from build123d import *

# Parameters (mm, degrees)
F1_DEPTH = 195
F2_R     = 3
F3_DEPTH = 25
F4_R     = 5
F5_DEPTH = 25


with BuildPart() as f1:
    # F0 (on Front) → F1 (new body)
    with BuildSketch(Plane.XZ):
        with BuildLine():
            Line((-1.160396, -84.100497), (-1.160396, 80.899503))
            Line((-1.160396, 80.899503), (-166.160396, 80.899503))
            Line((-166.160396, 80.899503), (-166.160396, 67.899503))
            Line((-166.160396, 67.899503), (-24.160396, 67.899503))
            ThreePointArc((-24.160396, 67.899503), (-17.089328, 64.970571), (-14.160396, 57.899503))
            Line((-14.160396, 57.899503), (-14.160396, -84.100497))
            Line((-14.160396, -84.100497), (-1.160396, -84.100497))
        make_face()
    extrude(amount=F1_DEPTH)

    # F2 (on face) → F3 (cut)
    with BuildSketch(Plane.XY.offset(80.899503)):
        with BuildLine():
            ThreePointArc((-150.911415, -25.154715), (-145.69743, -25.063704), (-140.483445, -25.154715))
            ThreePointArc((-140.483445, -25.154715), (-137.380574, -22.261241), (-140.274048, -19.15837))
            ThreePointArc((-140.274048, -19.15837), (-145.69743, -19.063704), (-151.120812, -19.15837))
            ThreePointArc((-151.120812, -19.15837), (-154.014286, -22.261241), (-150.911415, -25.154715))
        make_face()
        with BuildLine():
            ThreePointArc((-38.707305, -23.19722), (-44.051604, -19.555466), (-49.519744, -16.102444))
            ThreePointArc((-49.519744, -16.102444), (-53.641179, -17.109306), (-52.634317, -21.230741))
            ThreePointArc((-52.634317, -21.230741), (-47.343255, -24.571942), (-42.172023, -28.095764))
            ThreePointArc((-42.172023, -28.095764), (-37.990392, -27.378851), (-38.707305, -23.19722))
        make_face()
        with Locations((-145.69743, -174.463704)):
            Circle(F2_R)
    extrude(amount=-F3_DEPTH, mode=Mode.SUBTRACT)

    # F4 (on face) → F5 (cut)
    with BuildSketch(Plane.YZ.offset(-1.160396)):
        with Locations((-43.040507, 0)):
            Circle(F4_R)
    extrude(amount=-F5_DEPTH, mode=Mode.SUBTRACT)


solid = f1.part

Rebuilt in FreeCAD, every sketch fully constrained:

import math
import FreeCAD as App
import Part
import Sketcher

V = App.Vector

doc = App.newDocument("Part")
body = doc.addObject("PartDesign::Body", "Body")

# Sketch on XZ plane
sketch1 = body.newObject("Sketcher::SketchObject", "Sketch")
sketch1.AttachmentSupport = (doc.getObject("XZ_Plane"), [""])
sketch1.MapMode = "FlatFace"
sketch1.addGeometry([
    Part.LineSegment(V(-1.160396, -84.100497, 0), V(-1.160396, 80.899503, 0)),  # 0
    Part.LineSegment(V(-1.160396, 80.899503, 0), V(-166.160396, 80.899503, 0)),  # 1
    Part.LineSegment(V(-166.160396, 80.899503, 0), V(-166.160396, 67.899503, 0)),  # 2
    Part.LineSegment(V(-166.160396, 67.899503, 0), V(-24.160396, 67.899503, 0)),  # 3
    Part.ArcOfCircle(Part.Circle(V(-24.160395, 57.899504, 0), V(0, 0, 1), 9.999999), math.radians(-0.000004), math.radians(90.000004)),  # 4
    Part.LineSegment(V(-14.160396, 57.899503, 0), V(-14.160396, -84.100497, 0)),  # 5
    Part.LineSegment(V(-14.160396, -84.100497, 0), V(-1.160396, -84.100497, 0)),  # 6
], False)
sketch1.addConstraint([
    Sketcher.Constraint("Coincident", 0, 2, 1, 1),
    Sketcher.Constraint("Coincident", 1, 2, 2, 1),
    Sketcher.Constraint("Coincident", 2, 2, 3, 1),
    Sketcher.Constraint("Tangent", 3, 2, 4, 2),
    Sketcher.Constraint("Tangent", 4, 1, 5, 1),
    Sketcher.Constraint("Coincident", 5, 2, 6, 1),
    Sketcher.Constraint("Coincident", 6, 2, 0, 1),
    Sketcher.Constraint("Vertical", 0),
    Sketcher.Constraint("Horizontal", 1),
    Sketcher.Constraint("Vertical", 2),
    Sketcher.Constraint("Horizontal", 3),
    Sketcher.Constraint("Vertical", 5),
    Sketcher.Constraint("Horizontal", 6),
    Sketcher.Constraint("Equal", 1, 0),
    Sketcher.Constraint("Equal", 6, 2),
    Sketcher.Constraint("Radius", 4, 9.999999),
    Sketcher.Constraint("DistanceX", 1, 2, 1, 1, 165.0),
    Sketcher.Constraint("DistanceX", 3, 1, 3, 2, 142.0),
    Sketcher.Constraint("DistanceX", 4, 3, -1, 1, 24.160395),
    Sketcher.Constraint("DistanceY", -1, 1, 4, 3, 57.899504),
])
pad1 = body.newObject("PartDesign::Pad", "Pad")
pad1.Profile = sketch1
pad1.Length = 195

# Sketch on XY plane
sketch2 = body.newObject("Sketcher::SketchObject", "Sketch001")
sketch2.AttachmentSupport = (doc.getObject("XY_Plane"), [""])
sketch2.MapMode = "FlatFace"
sketch2.AttachmentOffset = App.Placement(V(0, 0, 80.899503), App.Rotation())
sketch2.addGeometry([
    Part.ArcOfCircle(Part.Circle(V(-145.69743, -174.462802, 0), V(0, 0, 1), 149.399098), math.radians(87.999988), math.radians(92.000012)),  # 0
    Part.ArcOfCircle(Part.Circle(V(-140.378747, -22.156543, 0), V(0, 0, 1), 3), math.radians(-92), math.radians(88)),  # 1
    Part.ArcOfCircle(Part.Circle(V(-145.69743, -174.462865, 0), V(0, 0, 1), 155.399161), math.radians(87.999989), math.radians(92.000011)),  # 2
    Part.ArcOfCircle(Part.Circle(V(-151.016113, -22.156543, 0), V(0, 0, 1), 3), math.radians(92), math.radians(272)),  # 3
    Part.ArcOfCircle(Part.Circle(V(-145.697057, -174.463141, 0), V(0, 0, 1), 185.278671), math.radians(54.728391), math.radians(58.728405)),  # 4
    Part.ArcOfCircle(Part.Circle(V(-51.07703, -18.666593, 0), V(0, 0, 1), 3), math.radians(58.728399), math.radians(238.728399)),  # 5
    Part.ArcOfCircle(Part.Circle(V(-145.696927, -174.462924, 0), V(0, 0, 1), 179.278418), math.radians(54.728384), math.radians(58.728405)),  # 6
    Part.ArcOfCircle(Part.Circle(V(-40.439664, -25.646492, 0), V(0, 0, 1), 3), math.radians(-125.271597), math.radians(54.728403)),  # 7
    Part.Circle(V(-145.69743, -174.463704, 0), V(0, 0, 1), 3),  # 8
], False)
sketch2.addConstraint([
    Sketcher.Constraint("Coincident", 0, 1, 1, 1),
    Sketcher.Constraint("Coincident", 1, 2, 2, 1),
    Sketcher.Constraint("Coincident", 2, 2, 3, 1),
    Sketcher.Constraint("Coincident", 3, 2, 0, 2),
    Sketcher.Constraint("Coincident", 4, 2, 5, 1),
    Sketcher.Constraint("Coincident", 5, 2, 6, 2),
    Sketcher.Constraint("Coincident", 6, 1, 7, 1),
    Sketcher.Constraint("Coincident", 7, 2, 4, 1),
    Sketcher.Constraint("Diameter", 8, 6.0),
    Sketcher.Constraint("Radius", 1, 3.0),
    Sketcher.Constraint("Radius", 3, 3.0),
    Sketcher.Constraint("Radius", 5, 3.0),
    Sketcher.Constraint("Radius", 7, 3.0),
    Sketcher.Constraint("Radius", 2, 155.399161),
    Sketcher.Constraint("Radius", 4, 185.278671),
    Sketcher.Constraint("Radius", 6, 179.278418),
    Sketcher.Constraint("Radius", 0, 149.399098),
    Sketcher.Constraint("DistanceY", 0, 3, -1, 1, 174.462802),
    Sketcher.Constraint("DistanceY", 4, 3, 1, 3, 152.306599),
    Sketcher.Constraint("DistanceY", 4, 3, 3, 3, 152.306599),
    Sketcher.Constraint("DistanceX", 0, 3, 5, 3, 94.620399),
    Sketcher.Constraint("DistanceY", 7, 3, 5, 3, 6.979899),
    Sketcher.Constraint("DistanceX", 0, 1, 1, 3, 0.104699),
    Sketcher.Constraint("DistanceX", 1, 3, 1, 2, 0.104698),
    Sketcher.Constraint("DistanceX", 2, 2, 3, 3, 0.104699),
    Sketcher.Constraint("DistanceX", 3, 3, 3, 2, 0.104698),
    Sketcher.Constraint("DistanceY", 1, 3, 4, 2, 6.054099),
    Sketcher.Constraint("DistanceX", 0, 1, 4, 2, 90.963701),
    Sketcher.Constraint("DistanceY", 1, 3, 5, 2, 0.925801),
    Sketcher.Constraint("DistanceX", 0, 3, -1, 1, 145.69743),
    Sketcher.Constraint("DistanceY", 4, 3, -1, 1, 174.463141),
    Sketcher.Constraint("DistanceX", 8, 3, -1, 1, 145.69743),
    Sketcher.Constraint("DistanceY", 7, 2, -1, 1, 23.19722),
    Sketcher.Constraint("DistanceY", 8, 3, 2, 3, 0.000839),
    Sketcher.Constraint("DistanceX", 6, 1, 7, 3, 1.732359),
])
pocket1 = body.newObject("PartDesign::Pocket", "Pocket")
pocket1.Profile = sketch2
pocket1.Length = 25

# Sketch on YZ plane
sketch3 = body.newObject("Sketcher::SketchObject", "Sketch002")
sketch3.AttachmentSupport = (doc.getObject("YZ_Plane"), [""])
sketch3.MapMode = "FlatFace"
sketch3.AttachmentOffset = App.Placement(V(0, 0, -1.160396), App.Rotation())
sketch3.addGeometry(Part.Circle(V(-43.040507, 0, 0), V(0, 0, 1), 5), False)
sketch3.addConstraint([
    Sketcher.Constraint("PointOnObject", 0, 3, -1),
    Sketcher.Constraint("Diameter", 0, 10.0),
    Sketcher.Constraint("DistanceX", 0, 3, -1, 1, 43.040507),
])
pocket2 = body.newObject("PartDesign::Pocket", "Pocket001")
pocket2.Profile = sketch3
pocket2.Length = 25

doc.recompute()
